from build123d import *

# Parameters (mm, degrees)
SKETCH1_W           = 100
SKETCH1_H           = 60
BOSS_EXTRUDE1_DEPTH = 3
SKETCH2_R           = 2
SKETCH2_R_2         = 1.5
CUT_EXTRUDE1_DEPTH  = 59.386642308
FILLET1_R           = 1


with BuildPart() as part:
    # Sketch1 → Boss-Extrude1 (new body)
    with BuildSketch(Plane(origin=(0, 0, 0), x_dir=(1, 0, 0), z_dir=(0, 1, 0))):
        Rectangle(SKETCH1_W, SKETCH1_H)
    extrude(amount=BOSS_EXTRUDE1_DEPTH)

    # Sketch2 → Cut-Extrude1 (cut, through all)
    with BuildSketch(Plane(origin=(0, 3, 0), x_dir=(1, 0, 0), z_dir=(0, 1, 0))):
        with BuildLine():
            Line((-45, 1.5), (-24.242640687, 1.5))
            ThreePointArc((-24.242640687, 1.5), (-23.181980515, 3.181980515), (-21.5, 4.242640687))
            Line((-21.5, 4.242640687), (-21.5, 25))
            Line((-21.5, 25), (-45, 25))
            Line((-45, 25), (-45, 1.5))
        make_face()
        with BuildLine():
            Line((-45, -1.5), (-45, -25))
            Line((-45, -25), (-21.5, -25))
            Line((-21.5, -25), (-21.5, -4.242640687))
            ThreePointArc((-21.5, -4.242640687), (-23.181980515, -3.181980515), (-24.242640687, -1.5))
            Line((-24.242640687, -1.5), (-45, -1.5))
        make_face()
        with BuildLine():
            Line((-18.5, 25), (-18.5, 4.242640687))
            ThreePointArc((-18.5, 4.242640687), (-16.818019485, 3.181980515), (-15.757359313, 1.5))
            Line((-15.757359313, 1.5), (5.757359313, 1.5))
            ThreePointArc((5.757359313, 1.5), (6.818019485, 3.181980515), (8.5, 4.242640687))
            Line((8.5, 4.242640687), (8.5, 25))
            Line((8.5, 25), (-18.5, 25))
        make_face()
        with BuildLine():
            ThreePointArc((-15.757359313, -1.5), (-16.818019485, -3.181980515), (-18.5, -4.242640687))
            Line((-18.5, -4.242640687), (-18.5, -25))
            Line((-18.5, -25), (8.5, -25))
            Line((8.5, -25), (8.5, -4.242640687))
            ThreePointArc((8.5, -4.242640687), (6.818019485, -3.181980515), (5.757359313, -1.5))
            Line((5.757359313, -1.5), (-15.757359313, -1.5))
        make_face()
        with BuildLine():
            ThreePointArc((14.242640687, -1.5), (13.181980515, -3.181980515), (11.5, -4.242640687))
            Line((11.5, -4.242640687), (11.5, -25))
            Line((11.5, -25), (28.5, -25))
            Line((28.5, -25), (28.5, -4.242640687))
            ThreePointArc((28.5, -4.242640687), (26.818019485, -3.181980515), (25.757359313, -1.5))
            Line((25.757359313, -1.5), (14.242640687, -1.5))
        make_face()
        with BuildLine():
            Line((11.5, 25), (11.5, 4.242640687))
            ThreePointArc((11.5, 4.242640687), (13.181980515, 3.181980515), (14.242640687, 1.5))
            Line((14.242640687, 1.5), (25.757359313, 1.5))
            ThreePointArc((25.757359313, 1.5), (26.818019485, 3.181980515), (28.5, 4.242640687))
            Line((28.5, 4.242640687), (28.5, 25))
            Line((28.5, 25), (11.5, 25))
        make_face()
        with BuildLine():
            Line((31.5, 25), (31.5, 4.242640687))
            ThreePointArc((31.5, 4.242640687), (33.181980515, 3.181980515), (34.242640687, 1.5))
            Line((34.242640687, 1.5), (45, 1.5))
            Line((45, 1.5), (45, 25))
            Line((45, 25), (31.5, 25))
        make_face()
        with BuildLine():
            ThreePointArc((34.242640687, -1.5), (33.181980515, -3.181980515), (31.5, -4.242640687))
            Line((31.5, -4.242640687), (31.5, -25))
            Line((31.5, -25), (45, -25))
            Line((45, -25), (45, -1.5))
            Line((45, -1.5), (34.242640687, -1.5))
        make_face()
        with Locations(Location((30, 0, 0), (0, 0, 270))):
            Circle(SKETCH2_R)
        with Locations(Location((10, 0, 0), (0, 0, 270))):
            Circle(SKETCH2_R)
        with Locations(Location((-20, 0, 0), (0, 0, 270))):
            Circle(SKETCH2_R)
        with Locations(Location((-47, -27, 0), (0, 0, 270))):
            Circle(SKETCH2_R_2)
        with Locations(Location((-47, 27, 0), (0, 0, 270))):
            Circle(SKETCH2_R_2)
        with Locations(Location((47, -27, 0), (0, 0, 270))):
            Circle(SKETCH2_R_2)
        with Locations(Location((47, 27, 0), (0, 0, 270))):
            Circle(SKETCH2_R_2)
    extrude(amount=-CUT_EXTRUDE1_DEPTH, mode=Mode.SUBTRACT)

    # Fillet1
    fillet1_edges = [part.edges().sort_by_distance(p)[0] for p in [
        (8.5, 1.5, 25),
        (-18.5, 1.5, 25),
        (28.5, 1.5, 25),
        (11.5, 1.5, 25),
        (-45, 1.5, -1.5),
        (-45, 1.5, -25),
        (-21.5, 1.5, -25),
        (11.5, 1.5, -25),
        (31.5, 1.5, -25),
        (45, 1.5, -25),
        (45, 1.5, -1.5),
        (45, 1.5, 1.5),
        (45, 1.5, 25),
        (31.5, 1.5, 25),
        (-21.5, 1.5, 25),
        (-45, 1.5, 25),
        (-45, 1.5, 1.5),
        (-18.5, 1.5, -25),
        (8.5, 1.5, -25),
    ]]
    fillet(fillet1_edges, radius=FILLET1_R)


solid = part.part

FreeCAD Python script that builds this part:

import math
import FreeCAD as App
import Part
import Sketcher

V = App.Vector
Q = App.Units.Quantity


def edges_at(feature, points):
    """Names of the edges that pass closest to the given points."""
    edges = feature.Shape.Edges
    near = lambda p: min(range(len(edges)), key=lambda i: edges[i].distToShape(Part.Vertex(*p))[0])
    return sorted({f"Edge{near(p) + 1}" for p in points})

doc = App.newDocument("Part")
body = doc.addObject("PartDesign::Body", "Body")

# Sketch on XZ plane
sketch1 = body.newObject("Sketcher::SketchObject", "Sketch")
sketch1.AttachmentSupport = (doc.getObject("XZ_Plane"), [""])
sketch1.MapMode = "FlatFace"
sketch1.addGeometry([
    Part.LineSegment(V(-50, -30, 0), V(-50, 30, 0)),
    Part.LineSegment(V(-50, 30, 0), V(50, 30, 0)),
    Part.LineSegment(V(50, 30, 0), V(50, -30, 0)),
    Part.LineSegment(V(50, -30, 0), V(-50, -30, 0)),
], False)
sketch1.addConstraint([
    Sketcher.Constraint("Coincident", 0, 2, 1, 1),
    Sketcher.Constraint("Coincident", 1, 2, 2, 1),
    Sketcher.Constraint("Coincident", 2, 2, 3, 1),
    Sketcher.Constraint("Coincident", 3, 2, 0, 1),
    Sketcher.Constraint("Vertical", 0),
    Sketcher.Constraint("Horizontal", 1),
    Sketcher.Constraint("Vertical", 2),
    Sketcher.Constraint("Horizontal", 3),
    Sketcher.Constraint("Symmetric", 0, 2, 2, 2, -1, 1),
    Sketcher.Constraint("DistanceX", 1, 1, 1, 2, Q("100 mm")),
    Sketcher.Constraint("DistanceY", 0, 1, 0, 2, Q("60 mm")),
])
pad1 = body.newObject("PartDesign::Pad", "Pad")
pad1.Profile = sketch1
pad1.Length = 3
pad1.Reversed = True

# Sketch on XZ plane
sketch2 = body.newObject("Sketcher::SketchObject", "Sketch001")
sketch2.AttachmentSupport = (doc.getObject("XZ_Plane"), [""])
sketch2.MapMode = "FlatFace"
sketch2.AttachmentOffset = App.Placement(V(0, 0, -3), App.Rotation())
sketch2.addGeometry([
    Part.LineSegment(V(-45, -1.5, 0), V(-24.242641, -1.5, 0)),  # 0
    Part.ArcOfCircle(Part.Circle(V(-20, 0, 0), V(0, 0, 1), 4.5), math.radians(-160.528779), math.radians(-109.471221)),  # 1
    Part.LineSegment(V(-21.5, -4.242641, 0), V(-21.5, -25, 0)),  # 2
    Part.LineSegment(V(-21.5, -25, 0), V(-45, -25, 0)),  # 3
    Part.LineSegment(V(-45, -25, 0), V(-45, -1.5, 0)),  # 4
    Part.LineSegment(V(-45, 1.5, 0), V(-45, 25, 0)),  # 5
    Part.LineSegment(V(-45, 25, 0), V(-21.5, 25, 0)),  # 6
    Part.LineSegment(V(-21.5, 25, 0), V(-21.5, 4.242641, 0)),  # 7
    Part.ArcOfCircle(Part.Circle(V(-20, 0, 0), V(0, 0, 1), 4.5), math.radians(109.471221), math.radians(160.528779)),  # 8
    Part.LineSegment(V(-24.242641, 1.5, 0), V(-45, 1.5, 0)),  # 9
    Part.LineSegment(V(-18.5, -25, 0), V(-18.5, -4.242641, 0)),  # 10
    Part.ArcOfCircle(Part.Circle(V(-20, 0, 0), V(0, 0, 1), 4.5), math.radians(-70.528779), math.radians(-19.471221)),  # 11
    Part.LineSegment(V(-15.757359, -1.5, 0), V(5.757359, -1.5, 0)),  # 12
    Part.ArcOfCircle(Part.Circle(V(10, 0, 0), V(0, 0, 1), 4.5), math.radians(-160.528779), math.radians(-109.471221)),  # 13
    Part.LineSegment(V(8.5, -4.242641, 0), V(8.5, -25, 0)),  # 14
    Part.LineSegment(V(8.5, -25, 0), V(-18.5, -25, 0)),  # 15
    Part.ArcOfCircle(Part.Circle(V(-20, 0, 0), V(0, 0, 1), 4.5), math.radians(19.471221), math.radians(70.528779)),  # 16
    Part.LineSegment(V(-18.5, 4.242641, 0), V(-18.5, 25, 0)),  # 17
    Part.LineSegment(V(-18.5, 25, 0), V(8.5, 25, 0)),  # 18
    Part.LineSegment(V(8.5, 25, 0), V(8.5, 4.242641, 0)),  # 19
    Part.ArcOfCircle(Part.Circle(V(10, 0, 0), V(0, 0, 1), 4.5), math.radians(109.471221), math.radians(160.528779)),  # 20
    Part.LineSegment(V(5.757359, 1.5, 0), V(-15.757359, 1.5, 0)),  # 21
    Part.ArcOfCircle(Part.Circle(V(10, 0, 0), V(0, 0, 1), 4.5), math.radians(19.471221), math.radians(70.528779)),  # 22
    Part.LineSegment(V(11.5, 4.242641, 0), V(11.5, 25, 0)),  # 23
    Part.LineSegment(V(11.5, 25, 0), V(28.5, 25, 0)),  # 24
    Part.LineSegment(V(28.5, 25, 0), V(28.5, 4.242641, 0)),  # 25
    Part.ArcOfCircle(Part.Circle(V(30, 0, 0), V(0, 0, 1), 4.5), math.radians(109.471221), math.radians(160.528779)),  # 26
    Part.LineSegment(V(25.757359, 1.5, 0), V(14.242641, 1.5, 0)),  # 27
    Part.LineSegment(V(11.5, -25, 0), V(11.5, -4.242641, 0)),  # 28
    Part.ArcOfCircle(Part.Circle(V(10, 0, 0), V(0, 0, 1), 4.5), math.radians(-70.528779), math.radians(-19.471221)),  # 29
    Part.LineSegment(V(14.242641, -1.5, 0), V(25.757359, -1.5, 0)),  # 30
    Part.ArcOfCircle(Part.Circle(V(30, 0, 0), V(0, 0, 1), 4.5), math.radians(-160.528779), math.radians(-109.471221)),  # 31
    Part.LineSegment(V(28.5, -4.242641, 0), V(28.5, -25, 0)),  # 32
    Part.LineSegment(V(28.5, -25, 0), V(11.5, -25, 0)),  # 33
    Part.LineSegment(V(31.5, -25, 0), V(31.5, -4.242641, 0)),  # 34
    Part.ArcOfCircle(Part.Circle(V(30, 0, 0), V(0, 0, 1), 4.5), math.radians(-70.528779), math.radians(-19.471221)),  # 35
    Part.LineSegment(V(34.242641, -1.5, 0), V(45, -1.5, 0)),  # 36
    Part.LineSegment(V(45, -1.5, 0), V(45, -25, 0)),  # 37
    Part.LineSegment(V(45, -25, 0), V(31.5, -25, 0)),  # 38
    Part.ArcOfCircle(Part.Circle(V(30, 0, 0), V(0, 0, 1), 4.5), math.radians(19.471221), math.radians(70.528779)),  # 39
    Part.LineSegment(V(31.5, 4.242641, 0), V(31.5, 25, 0)),  # 40
    Part.LineSegment(V(31.5, 25, 0), V(45, 25, 0)),  # 41
    Part.LineSegment(V(45, 25, 0), V(45, 1.5, 0)),  # 42
    Part.LineSegment(V(45, 1.5, 0), V(34.242641, 1.5, 0)),  # 43
    Part.Circle(V(30, 0, 0), V(0, 0, 1), 2),  # 44
    Part.Circle(V(10, 0, 0), V(0, 0, 1), 2),  # 45
    Part.Circle(V(-20, 0, 0), V(0, 0, 1), 2),  # 46
    Part.Circle(V(-47, 27, 0), V(0, 0, 1), 1.5),  # 47
    Part.Circle(V(-47, -27, 0), V(0, 0, 1), 1.5),  # 48
    Part.Circle(V(47, 27, 0), V(0, 0, 1), 1.5),  # 49
    Part.Circle(V(47, -27, 0), V(0, 0, 1), 1.5),  # 50
], False)
sketch2.addConstraint([
    Sketcher.Constraint("Coincident", 0, 2, 1, 1),
    Sketcher.Constraint("Coincident", 1, 2, 2, 1),
    Sketcher.Constraint("Coincident", 2, 2, 3, 1),
    Sketcher.Constraint("Coincident", 3, 2, 4, 1),
    Sketcher.Constraint("Coincident", 4, 2, 0, 1),
    Sketcher.Constraint("Coincident", 5, 2, 6, 1),
    Sketcher.Constraint("Coincident", 6, 2, 7, 1),
    Sketcher.Constraint("Coincident", 7, 2, 8, 1),
    Sketcher.Constraint("Coincident", 8, 2, 9, 1),
    Sketcher.Constraint("Coincident", 9, 2, 5, 1),
    Sketcher.Constraint("Coincident", 10, 2, 11, 1),
    Sketcher.Constraint("Coincident", 11, 2, 12, 1),
    Sketcher.Constraint("Coincident", 12, 2, 13, 1),
    Sketcher.Constraint("Coincident", 13, 2, 14, 1),
    Sketcher.Constraint("Coincident", 14, 2, 15, 1),
    Sketcher.Constraint("Coincident", 15, 2, 10, 1),
    Sketcher.Constraint("Coincident", 16, 2, 17, 1),
    Sketcher.Constraint("Coincident", 17, 2, 18, 1),
    Sketcher.Constraint("Coincident", 18, 2, 19, 1),
    Sketcher.Constraint("Coincident", 19, 2, 20, 1),
    Sketcher.Constraint("Coincident", 20, 2, 21, 1),
    Sketcher.Constraint("Coincident", 21, 2, 16, 1),
    Sketcher.Constraint("Coincident", 22, 2, 23, 1),
    Sketcher.Constraint("Coincident", 23, 2, 24, 1),
    Sketcher.Constraint("Coincident", 24, 2, 25, 1),
    Sketcher.Constraint("Coincident", 25, 2, 26, 1),
    Sketcher.Constraint("Coincident", 26, 2, 27, 1),
    Sketcher.Constraint("Coincident", 27, 2, 22, 1),
    Sketcher.Constraint("Coincident", 28, 2, 29, 1),
    Sketcher.Constraint("Coincident", 29, 2, 30, 1),
    Sketcher.Constraint("Coincident", 30, 2, 31, 1),
    Sketcher.Constraint("Coincident", 31, 2, 32, 1),
    Sketcher.Constraint("Coincident", 32, 2, 33, 1),
    Sketcher.Constraint("Coincident", 33, 2, 28, 1),
    Sketcher.Constraint("Coincident", 34, 2, 35, 1),
    Sketcher.Constraint("Coincident", 35, 2, 36, 1),
    Sketcher.Constraint("Coincident", 36, 2, 37, 1),
    Sketcher.Constraint("Coincident", 37, 2, 38, 1),
    Sketcher.Constraint("Coincident", 38, 2, 34, 1),
    Sketcher.Constraint("Coincident", 39, 2, 40, 1),
    Sketcher.Constraint("Coincident", 40, 2, 41, 1),
    Sketcher.Constraint("Coincident", 41, 2, 42, 1),
    Sketcher.Constraint("Coincident", 42, 2, 43, 1),
    Sketcher.Constraint("Coincident", 43, 2, 39, 1),
    Sketcher.Constraint("Horizontal", 0),
    Sketcher.Constraint("Vertical", 2),
    Sketcher.Constraint("Horizontal", 3),
    Sketcher.Constraint("Vertical", 4),
    Sketcher.Constraint("Vertical", 5),
    Sketcher.Constraint("Horizontal", 6),
    Sketcher.Constraint("Vertical", 7),
    Sketcher.Constraint("Horizontal", 9),
    Sketcher.Constraint("Vertical", 10),
    Sketcher.Constraint("Horizontal", 12),
    Sketcher.Constraint("Vertical", 14),
    Sketcher.Constraint("Horizontal", 15),
    Sketcher.Constraint("Vertical", 17),
    Sketcher.Constraint("Horizontal", 18),
    Sketcher.Constraint("Vertical", 19),
    Sketcher.Constraint("Horizontal", 21),
    Sketcher.Constraint("Vertical", 23),
    Sketcher.Constraint("Horizontal", 24),
    Sketcher.Constraint("Vertical", 25),
    Sketcher.Constraint("Horizontal", 27),
    Sketcher.Constraint("Vertical", 28),
    Sketcher.Constraint("Horizontal", 30),
    Sketcher.Constraint("Vertical", 32),
    Sketcher.Constraint("Horizontal", 33),
    Sketcher.Constraint("Vertical", 34),
    Sketcher.Constraint("Horizontal", 36),
    Sketcher.Constraint("Vertical", 37),
    Sketcher.Constraint("Horizontal", 38),
    Sketcher.Constraint("Vertical", 40),
    Sketcher.Constraint("Horizontal", 41),
    Sketcher.Constraint("Vertical", 42),
    Sketcher.Constraint("Horizontal", 43),
    Sketcher.Constraint("Coincident", 8, 3, 1, 3),
    Sketcher.Constraint("Coincident", 11, 3, 1, 3),
    Sketcher.Constraint("Coincident", 16, 3, 1, 3),
    Sketcher.Constraint("Coincident", 20, 3, 13, 3),
    Sketcher.Constraint("Coincident", 22, 3, 13, 3),
    Sketcher.Constraint("Coincident", 29, 3, 13, 3),
    Sketcher.Constraint("Coincident", 31, 3, 26, 3),
    Sketcher.Constraint("Coincident", 35, 3, 26, 3),
    Sketcher.Constraint("Coincident", 39, 3, 26, 3),
    Sketcher.Constraint("Coincident", 44, 3, 26, 3),
    Sketcher.Constraint("Coincident", 45, 3, 13, 3),
    Sketcher.Constraint("Coincident", 46, 3, 1, 3),
    Sketcher.Constraint("Equal", 1, 8),
    Sketcher.Constraint("Equal", 8, 11),
    Sketcher.Constraint("Equal", 11, 13),
    Sketcher.Constraint("Equal", 13, 16),
    Sketcher.Constraint("Equal", 16, 20),
    Sketcher.Constraint("Equal", 20, 22),
    Sketcher.Constraint("Equal", 22, 26),
    Sketcher.Constraint("Equal", 26, 29),
    Sketcher.Constraint("Equal", 29, 31),
    Sketcher.Constraint("Equal", 31, 35),
    Sketcher.Constraint("Equal", 35, 39),
    Sketcher.Constraint("Equal", 44, 45),
    Sketcher.Constraint("Equal", 45, 46),
    Sketcher.Constraint("Equal", 47, 48),
    Sketcher.Constraint("Equal", 48, 49),
    Sketcher.Constraint("Equal", 49, 50),
    Sketcher.Constraint("Symmetric", 48, 3, 49, 3, -1, 1),
    Sketcher.Constraint("Symmetric", 47, 3, 50, 3, -1, 1),
    Sketcher.Constraint("Symmetric", 9, 2, 36, 2, -1, 1),
    Sketcher.Constraint("Symmetric", 3, 2, 41, 2, -1, 1),
    Sketcher.Constraint("Symmetric", 47, 3, 49, 3, -2),
    Sketcher.Constraint("Symmetric", 4, 2, 36, 2, -2),
    Sketcher.Constraint("Symmetric", 2, 2, 6, 2, -1),
    Sketcher.Constraint("Symmetric", 10, 2, 16, 2, -1),
    Sketcher.Constraint("Symmetric", 14, 2, 18, 2, -1),
    Sketcher.Constraint("Symmetric", 12, 2, 20, 2, -1),
    Sketcher.Constraint("Symmetric", 26, 2, 30, 2, -1),
    Sketcher.Constraint("Symmetric", 24, 2, 32, 2, -1),
    Sketcher.Constraint("Symmetric", 38, 2, 40, 2, -1),
    Sketcher.Constraint("Horizontal", 1, 2, 10, 2),
    Sketcher.Constraint("Horizontal", 4, 2, 11, 2),
    Sketcher.Constraint("Horizontal", 10, 2, 13, 2),
    Sketcher.Constraint("Horizontal", 3, 2, 14, 2),
    Sketcher.Constraint("Horizontal", 19, 2, 22, 2),
    Sketcher.Constraint("Horizontal", 18, 2, 23, 2),
    Sketcher.Constraint("Horizontal", 22, 2, 25, 2),
    Sketcher.Constraint("Horizontal", 21, 2, 26, 2),
    Sketcher.Constraint("Horizontal", 13, 2, 28, 2),
    Sketcher.Constraint("Horizontal", 31, 2, 34, 2),
    Sketcher.Constraint("Horizontal", 27, 2, 42, 2),
    Sketcher.Constraint("Equal", 9, 2),
    Sketcher.Constraint("Equal", 6, 4),
    Sketcher.Constraint("Diameter", 44, Q("4 mm")),
    Sketcher.Constraint("Diameter", 47, Q("3 mm")),
    Sketcher.Constraint("Radius", 1, Q("4.5 mm")),
    Sketcher.Constraint("DistanceX", 15, 2, 15, 1, Q("27 mm")),
    Sketcher.Constraint("DistanceX", 24, 1, 24, 2, Q("17 mm")),
    Sketcher.Constraint("DistanceX", 3, 2, 3, 1, Q("23.5 mm")),
    Sketcher.Constraint("DistanceX", 38, 2, 38, 1, Q("13.5 mm")),
    Sketcher.Constraint("DistanceX", 1, 3, -1, 1, Q("20 mm")),
    Sketcher.Constraint("DistanceX", 47, 3, -1, 1, Q("47 mm")),
    Sketcher.Constraint("DistanceY", -1, 1, 47, 3, Q("27 mm")),
])
pocket1 = body.newObject("PartDesign::Pocket", "Pocket")
pocket1.Profile = sketch2
pocket1.Type = "ThroughAll"
pocket1.Reversed = True
doc.recompute()

fillet = body.newObject("PartDesign::Fillet", "Fillet")
fillet.Base = (pocket1, edges_at(pocket1, [
    (8.5, 1.5, 25),
    (-18.5, 1.5, 25),
    (28.5, 1.5, 25),
    (11.5, 1.5, 25),
    (-45, 1.5, -1.5),
    (-45, 1.5, -25),
    (-21.5, 1.5, -25),
    (11.5, 1.5, -25),
    (31.5, 1.5, -25),
    (45, 1.5, -25),
    (45, 1.5, -1.5),
    (45, 1.5, 1.5),
    (45, 1.5, 25),
    (31.5, 1.5, 25),
    (-21.5, 1.5, 25),
    (-45, 1.5, 25),
    (-45, 1.5, 1.5),
    (-18.5, 1.5, -25),
    (8.5, 1.5, -25),
]))
fillet.Radius = 1

doc.recompute()
